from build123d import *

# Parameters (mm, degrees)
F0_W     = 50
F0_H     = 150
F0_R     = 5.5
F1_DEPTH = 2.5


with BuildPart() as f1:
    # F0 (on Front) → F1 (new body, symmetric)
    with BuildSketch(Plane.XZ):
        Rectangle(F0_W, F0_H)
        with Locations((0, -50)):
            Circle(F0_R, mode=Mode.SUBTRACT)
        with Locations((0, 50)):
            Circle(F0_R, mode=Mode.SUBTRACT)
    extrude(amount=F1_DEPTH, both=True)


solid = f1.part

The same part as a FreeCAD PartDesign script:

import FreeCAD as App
import Part
import Sketcher
Q = App.Units.Quantity


def add_polygon(sketch, points):
    """Adds a closed chain of lines whose ends are joined by coincident constraints."""
    first, n = sketch.GeometryCount, len(points)
    for a, b in zip(points, points[1:] + points[:1]):
        sketch.addGeometry(Part.LineSegment(App.Vector(*a, 0), App.Vector(*b, 0)), False)
    for i in range(n):
        sketch.addConstraint(Sketcher.Constraint("Coincident", first + i, 2, first + (i + 1) % n, 1))

doc = App.newDocument("Part")
body = doc.addObject("PartDesign::Body", "Body")

# Sketch on XZ plane
sketch1 = body.newObject("Sketcher::SketchObject", "Sketch")
sketch1.AttachmentSupport = (doc.getObject("XZ_Plane"), [""])
sketch1.MapMode = "FlatFace"
add_polygon(sketch1, [(-25, 75), (-25, -75), (25, -75), (25, 75)])  # lines 0-3
sketch1.addGeometry(Part.Circle(App.Vector(0, -50, 0), App.Vector(0, 0, 1), 6), False)  # 4
sketch1.addGeometry(Part.Circle(App.Vector(0, 50, 0), App.Vector(0, 0, 1), 6), False)  # 5
sketch1.addConstraint(Sketcher.Constraint("Vertical", 0))
sketch1.addConstraint(Sketcher.Constraint("Horizontal", 1))
sketch1.addConstraint(Sketcher.Constraint("Vertical", 2))
sketch1.addConstraint(Sketcher.Constraint("Horizontal", 3))
sketch1.addConstraint(Sketcher.Constraint("Equal", 4, 5))
sketch1.addConstraint(Sketcher.Constraint("Symmetric", 4, 3, 5, 3, -1, 1))
sketch1.addConstraint(Sketcher.Constraint("Symmetric", 0, 2, 2, 2, -1, 1))
sketch1.addConstraint(Sketcher.Constraint("PointOnObject", 4, 3, -2))
sketch1.addConstraint(Sketcher.Constraint("Diameter", 4, Q("11 mm")))
sketch1.addConstraint(Sketcher.Constraint("DistanceX", 1, 1, 1, 2, Q("50 mm")))
sketch1.addConstraint(Sketcher.Constraint("DistanceY", 0, 2, 0, 1, Q("150 mm")))
sketch1.addConstraint(Sketcher.Constraint("DistanceY", 4, 3, -1, 1, Q("50 mm")))
pad1 = body.newObject("PartDesign::Pad", "Pad")
pad1.Profile = sketch1
pad1.Length = 5
pad1.Midplane = True

doc.recompute()
